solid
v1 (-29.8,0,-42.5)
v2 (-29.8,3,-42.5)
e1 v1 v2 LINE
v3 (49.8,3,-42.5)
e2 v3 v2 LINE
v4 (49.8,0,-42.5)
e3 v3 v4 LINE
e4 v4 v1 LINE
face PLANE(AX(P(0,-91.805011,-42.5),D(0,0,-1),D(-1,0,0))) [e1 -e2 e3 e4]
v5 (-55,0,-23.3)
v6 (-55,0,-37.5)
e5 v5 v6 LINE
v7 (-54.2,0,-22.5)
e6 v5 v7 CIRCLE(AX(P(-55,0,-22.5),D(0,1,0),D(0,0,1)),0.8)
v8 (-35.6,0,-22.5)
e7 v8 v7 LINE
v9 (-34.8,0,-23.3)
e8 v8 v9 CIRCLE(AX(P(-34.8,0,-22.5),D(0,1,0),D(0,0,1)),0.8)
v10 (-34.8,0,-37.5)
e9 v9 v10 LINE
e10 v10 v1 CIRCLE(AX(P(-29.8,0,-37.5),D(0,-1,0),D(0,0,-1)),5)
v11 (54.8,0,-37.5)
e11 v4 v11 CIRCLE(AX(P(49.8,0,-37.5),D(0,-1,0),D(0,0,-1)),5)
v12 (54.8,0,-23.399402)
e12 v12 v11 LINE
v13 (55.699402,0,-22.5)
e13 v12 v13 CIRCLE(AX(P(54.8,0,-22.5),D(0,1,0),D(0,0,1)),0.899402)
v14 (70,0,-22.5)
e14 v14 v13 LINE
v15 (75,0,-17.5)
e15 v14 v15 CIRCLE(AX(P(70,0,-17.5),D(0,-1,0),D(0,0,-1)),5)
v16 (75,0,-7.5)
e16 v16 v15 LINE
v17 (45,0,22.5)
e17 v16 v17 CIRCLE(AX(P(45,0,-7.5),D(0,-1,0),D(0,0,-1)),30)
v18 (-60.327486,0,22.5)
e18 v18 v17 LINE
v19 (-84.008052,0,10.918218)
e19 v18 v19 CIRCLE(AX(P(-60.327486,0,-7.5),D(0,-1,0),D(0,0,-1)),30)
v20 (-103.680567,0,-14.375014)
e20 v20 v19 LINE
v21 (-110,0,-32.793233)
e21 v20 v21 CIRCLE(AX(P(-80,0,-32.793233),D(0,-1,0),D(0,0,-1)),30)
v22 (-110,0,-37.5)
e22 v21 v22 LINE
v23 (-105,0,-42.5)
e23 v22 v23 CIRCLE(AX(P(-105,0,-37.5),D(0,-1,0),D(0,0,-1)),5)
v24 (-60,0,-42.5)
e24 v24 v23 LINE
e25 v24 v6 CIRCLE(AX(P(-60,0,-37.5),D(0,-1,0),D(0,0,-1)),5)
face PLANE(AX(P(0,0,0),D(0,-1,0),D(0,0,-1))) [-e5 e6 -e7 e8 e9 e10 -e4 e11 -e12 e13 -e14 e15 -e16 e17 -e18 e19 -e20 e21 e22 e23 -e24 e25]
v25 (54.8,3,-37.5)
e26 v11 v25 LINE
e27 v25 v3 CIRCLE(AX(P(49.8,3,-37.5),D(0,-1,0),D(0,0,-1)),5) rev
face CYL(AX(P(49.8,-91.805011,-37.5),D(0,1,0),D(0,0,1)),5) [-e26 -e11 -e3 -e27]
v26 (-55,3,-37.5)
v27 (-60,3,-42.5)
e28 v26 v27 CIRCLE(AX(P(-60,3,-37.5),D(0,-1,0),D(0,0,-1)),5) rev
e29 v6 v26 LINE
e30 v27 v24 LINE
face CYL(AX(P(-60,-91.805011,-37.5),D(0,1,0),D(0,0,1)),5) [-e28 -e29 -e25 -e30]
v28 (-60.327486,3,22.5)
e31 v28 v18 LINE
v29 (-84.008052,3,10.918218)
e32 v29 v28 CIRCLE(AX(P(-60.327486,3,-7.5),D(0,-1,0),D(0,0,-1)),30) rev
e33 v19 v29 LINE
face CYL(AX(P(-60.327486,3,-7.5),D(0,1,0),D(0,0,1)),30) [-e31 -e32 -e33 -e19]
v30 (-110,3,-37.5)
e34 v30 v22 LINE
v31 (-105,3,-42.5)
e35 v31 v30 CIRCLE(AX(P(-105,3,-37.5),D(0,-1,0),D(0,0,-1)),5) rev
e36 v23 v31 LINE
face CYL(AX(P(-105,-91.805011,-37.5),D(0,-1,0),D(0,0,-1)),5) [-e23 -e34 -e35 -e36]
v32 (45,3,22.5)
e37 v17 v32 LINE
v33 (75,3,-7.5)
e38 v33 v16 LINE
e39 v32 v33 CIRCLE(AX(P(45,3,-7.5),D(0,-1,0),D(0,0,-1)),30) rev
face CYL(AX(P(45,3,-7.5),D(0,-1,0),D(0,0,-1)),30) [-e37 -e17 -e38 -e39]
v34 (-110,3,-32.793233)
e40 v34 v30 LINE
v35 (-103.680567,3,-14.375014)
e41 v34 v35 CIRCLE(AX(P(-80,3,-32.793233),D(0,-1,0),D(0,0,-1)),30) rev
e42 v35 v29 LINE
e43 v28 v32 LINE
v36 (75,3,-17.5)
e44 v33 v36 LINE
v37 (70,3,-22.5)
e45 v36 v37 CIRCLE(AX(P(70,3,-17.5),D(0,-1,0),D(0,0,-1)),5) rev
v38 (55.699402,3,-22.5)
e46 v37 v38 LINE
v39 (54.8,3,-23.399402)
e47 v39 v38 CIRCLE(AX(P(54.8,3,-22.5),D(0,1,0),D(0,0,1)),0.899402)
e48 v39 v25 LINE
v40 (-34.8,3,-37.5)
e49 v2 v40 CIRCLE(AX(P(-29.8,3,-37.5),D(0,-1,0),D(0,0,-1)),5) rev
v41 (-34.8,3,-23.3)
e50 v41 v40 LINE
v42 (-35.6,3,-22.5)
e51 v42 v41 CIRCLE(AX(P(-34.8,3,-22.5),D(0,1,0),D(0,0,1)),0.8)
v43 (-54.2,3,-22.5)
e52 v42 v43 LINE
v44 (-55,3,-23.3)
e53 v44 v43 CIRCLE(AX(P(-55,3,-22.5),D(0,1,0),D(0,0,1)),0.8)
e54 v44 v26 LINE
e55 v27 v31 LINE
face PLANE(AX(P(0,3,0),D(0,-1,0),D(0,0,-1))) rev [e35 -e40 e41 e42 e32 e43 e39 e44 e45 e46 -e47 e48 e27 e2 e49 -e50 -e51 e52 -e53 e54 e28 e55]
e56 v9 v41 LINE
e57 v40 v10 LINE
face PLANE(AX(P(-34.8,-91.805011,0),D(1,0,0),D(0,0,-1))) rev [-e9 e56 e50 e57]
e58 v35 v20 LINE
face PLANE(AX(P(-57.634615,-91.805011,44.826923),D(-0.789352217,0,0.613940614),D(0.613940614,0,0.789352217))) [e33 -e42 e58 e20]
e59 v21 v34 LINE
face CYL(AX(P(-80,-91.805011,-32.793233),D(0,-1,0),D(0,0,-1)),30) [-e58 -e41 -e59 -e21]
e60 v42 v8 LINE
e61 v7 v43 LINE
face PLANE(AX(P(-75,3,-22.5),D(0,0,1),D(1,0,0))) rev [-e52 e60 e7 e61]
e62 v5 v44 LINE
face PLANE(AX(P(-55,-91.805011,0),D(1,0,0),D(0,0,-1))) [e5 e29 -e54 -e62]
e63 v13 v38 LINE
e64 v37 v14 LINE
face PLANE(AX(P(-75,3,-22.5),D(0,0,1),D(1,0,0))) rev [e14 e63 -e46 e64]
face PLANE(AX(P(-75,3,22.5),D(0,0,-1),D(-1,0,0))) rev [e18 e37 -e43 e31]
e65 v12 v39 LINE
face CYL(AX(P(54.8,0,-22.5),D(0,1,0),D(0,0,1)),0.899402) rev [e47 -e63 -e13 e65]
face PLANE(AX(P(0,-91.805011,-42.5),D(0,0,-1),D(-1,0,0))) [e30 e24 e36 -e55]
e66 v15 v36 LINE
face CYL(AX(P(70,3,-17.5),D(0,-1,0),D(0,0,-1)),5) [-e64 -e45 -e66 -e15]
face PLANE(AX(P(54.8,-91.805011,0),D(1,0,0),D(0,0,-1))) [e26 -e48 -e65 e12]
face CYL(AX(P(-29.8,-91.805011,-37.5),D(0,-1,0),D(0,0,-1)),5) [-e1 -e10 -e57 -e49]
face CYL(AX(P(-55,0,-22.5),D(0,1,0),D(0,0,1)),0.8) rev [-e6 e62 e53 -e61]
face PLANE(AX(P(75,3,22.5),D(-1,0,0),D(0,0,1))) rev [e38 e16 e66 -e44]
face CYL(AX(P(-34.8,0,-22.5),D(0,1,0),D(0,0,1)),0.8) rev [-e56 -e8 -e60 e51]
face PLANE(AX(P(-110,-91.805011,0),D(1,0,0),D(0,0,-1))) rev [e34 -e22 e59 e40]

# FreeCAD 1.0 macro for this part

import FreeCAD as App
import Part
import Sketcher
Q = App.Units.Quantity


def edges_at(feature, points):
    """Names of the edges that pass closest to the given points."""
    edges = feature.Shape.Edges
    near = lambda p: min(range(len(edges)), key=lambda i: edges[i].distToShape(Part.Vertex(*p))[0])
    return sorted({f"Edge{near(p) + 1}" for p in points})

doc = App.newDocument("Part")
body = doc.addObject("PartDesign::Body", "Body")

sketch1 = body.newObject("Sketcher::SketchObject", "Sketch")
sketch1.AttachmentSupport = (doc.getObject("XZ_Plane"), [""])
sketch1.MapMode = "FlatFace"
sketch1.addGeometry([
    Part.LineSegment(App.Vector(-75, -22, 0), App.Vector(-75, 22, 0)),
    Part.LineSegment(App.Vector(-75, 22, 0), App.Vector(75, 22, 0)),
    Part.LineSegment(App.Vector(75, 22, 0), App.Vector(75, -22, 0)),
    Part.LineSegment(App.Vector(75, -22, 0), App.Vector(-75, -22, 0)),
], False)
sketch1.addConstraint([
    Sketcher.Constraint("Coincident", 0, 2, 1, 1),
    Sketcher.Constraint("Coincident", 1, 2, 2, 1),
    Sketcher.Constraint("Coincident", 2, 2, 3, 1),
    Sketcher.Constraint("Coincident", 3, 2, 0, 1),
    Sketcher.Constraint("Vertical", 0),
    Sketcher.Constraint("Horizontal", 1),
    Sketcher.Constraint("Vertical", 2),
    Sketcher.Constraint("Horizontal", 3),
    Sketcher.Constraint("Symmetric", 0, 2, 2, 2, -1, 1),
    Sketcher.Constraint("DistanceX", 1, 1, 1, 2, Q("150 mm")),
    Sketcher.Constraint("DistanceY", 0, 1, 0, 2, Q("45 mm")),
])
pad1 = body.newObject("PartDesign::Pad", "Pad")
pad1.Profile = sketch1
pad1.Length = 3
pad1.Reversed = True
doc.recompute()

fillet = body.newObject("PartDesign::Fillet", "Fillet")
fillet.Base = (pad1, edges_at(pad1, [(75, 1.5, 22.5)]))
fillet.Radius = 30

sketch2 = body.newObject("Sketcher::SketchObject", "Sketch001")
sketch2.AttachmentSupport = (doc.getObject("XZ_Plane"), [""])
sketch2.MapMode = "FlatFace"
sketch2.AttachmentOffset = App.Placement(App.Vector(0, 0, -3), App.Rotation())
sketch2.addGeometry([
    Part.LineSegment(App.Vector(-55, -22, 0), App.Vector(-55, -42, 0)),
    Part.LineSegment(App.Vector(-55, -42, 0), App.Vector(-110, -42, 0)),
    Part.LineSegment(App.Vector(-110, -42, 0), App.Vector(-110, -22, 0)),
    Part.LineSegment(App.Vector(-110, -22, 0), App.Vector(-75, 22, 0)),
    Part.LineSegment(App.Vector(-75, 22, 0), App.Vector(-75, -22, 0)),
    Part.LineSegment(App.Vector(-75, -22, 0), App.Vector(-55, -22, 0)),
    Part.LineSegment(App.Vector(-35, -42, 0), App.Vector(-35, -22, 0)),
    Part.LineSegment(App.Vector(-35, -22, 0), App.Vector(55, -22, 0)),
    Part.LineSegment(App.Vector(55, -22, 0), App.Vector(55, -42, 0)),
    Part.LineSegment(App.Vector(55, -42, 0), App.Vector(-35, -42, 0)),
], False)
sketch2.addConstraint([
    Sketcher.Constraint("Coincident", 0, 2, 1, 1),
    Sketcher.Constraint("Coincident", 1, 2, 2, 1),
    Sketcher.Constraint("Coincident", 2, 2, 3, 1),
    Sketcher.Constraint("Coincident", 3, 2, 4, 1),
    Sketcher.Constraint("Coincident", 4, 2, 5, 1),
    Sketcher.Constraint("Coincident", 5, 2, 0, 1),
    Sketcher.Constraint("Coincident", 6, 2, 7, 1),
    Sketcher.Constraint("Coincident", 7, 2, 8, 1),
    Sketcher.Constraint("Coincident", 8, 2, 9, 1),
    Sketcher.Constraint("Coincident", 9, 2, 6, 1),
    Sketcher.Constraint("Vertical", 0),
    Sketcher.Constraint("Horizontal", 1),
    Sketcher.Constraint("Vertical", 2),
    Sketcher.Constraint("Vertical", 4),
    Sketcher.Constraint("Horizontal", 5),
    Sketcher.Constraint("Vertical", 6),
    Sketcher.Constraint("Horizontal", 7),
    Sketcher.Constraint("Vertical", 8),
    Sketcher.Constraint("Horizontal", 9),
    Sketcher.Constraint("Horizontal", 2, 2, 4, 2),
    Sketcher.Constraint("Horizontal", 5, 2, 6, 2),
    Sketcher.Constraint("Horizontal", 1, 2, 8, 2),
    Sketcher.Constraint("Equal", 5, 0),
    Sketcher.Constraint("DistanceX", 1, 2, 1, 1, Q("55 mm")),
    Sketcher.Constraint("DistanceX", 5, 1, 5, 2, Q("20 mm")),
    Sketcher.Constraint("DistanceY", 4, 2, 4, 1, Q("45 mm")),
    Sketcher.Constraint("DistanceX", 7, 1, 7, 2, Q("89.6 mm")),
    Sketcher.Constraint("DistanceX", 0, 2, -1, 1, Q("55 mm")),
    Sketcher.Constraint("DistanceY", 0, 2, -1, 1, Q("42.5 mm")),
    Sketcher.Constraint("DistanceX", 6, 2, -1, 1, Q("34.8 mm")),
])
pad2 = body.newObject("PartDesign::Pad", "Pad001")
pad2.Profile = sketch2
pad2.Length = 3
doc.recompute()

fillet2 = body.newObject("PartDesign::Fillet", "Fillet001")
fillet2.Base = (pad2, edges_at(pad2, [(-110, 1.5, -22.5), (-75, 1.5, 22.5)]))
fillet2.Radius = 30

sketch3 = body.newObject("Sketcher::SketchObject", "Sketch002")
sketch3.AttachmentSupport = (doc.getObject("XZ_Plane"), [""])
sketch3.MapMode = "FlatFace"
sketch3.AttachmentOffset = App.Placement(App.Vector(0, 0, -3), App.Rotation())
sketch3.addGeometry([
    Part.Circle(App.Vector(-55, -22.5, 0), App.Vector(0, 0, 1), 0.8),
    Part.Circle(App.Vector(-34.8, -22.5, 0), App.Vector(0, 0, 1), 0.8),
    Part.Circle(App.Vector(54.8, -22.5, 0), App.Vector(0, 0, 1), 0.9),
], False)
sketch3.addConstraint([
    Sketcher.Constraint("Equal", 0, 1),
    Sketcher.Constraint("Horizontal", 0, 3, 1, 3),
    Sketcher.Constraint("Horizontal", 1, 3, 2, 3),
    Sketcher.Constraint("Diameter", 0, Q("1.6 mm")),
    Sketcher.Constraint("DistanceX", 0, 3, -1, 1, Q("55 mm")),
    Sketcher.Constraint("DistanceY", 0, 3, -1, 1, Q("22.5 mm")),
    Sketcher.Constraint("DistanceX", 1, 3, -1, 1, Q("34.8 mm")),
    Sketcher.Constraint("DistanceX", -1, 1, 2, 3, Q("54.8 mm")),
    Sketcher.Constraint("Diameter", 2, Q("1.798804 mm")),
])
pocket1 = body.newObject("PartDesign::Pocket", "Pocket")
pocket1.Profile = sketch3
pocket1.Type = "ThroughAll"
pocket1.Reversed = True
doc.recompute()

fillet3 = body.newObject("PartDesign::Fillet", "Fillet002")
fillet3.Base = (pocket1, edges_at(pocket1, [
    (-55, 1.5, -42.5),
    (-110, 1.5, -42.5),
    (-34.8, 1.5, -42.5),
    (54.8, 1.5, -42.5),
    (75, 1.5, -22.5),
]))
fillet3.Radius = 5

doc.recompute()
